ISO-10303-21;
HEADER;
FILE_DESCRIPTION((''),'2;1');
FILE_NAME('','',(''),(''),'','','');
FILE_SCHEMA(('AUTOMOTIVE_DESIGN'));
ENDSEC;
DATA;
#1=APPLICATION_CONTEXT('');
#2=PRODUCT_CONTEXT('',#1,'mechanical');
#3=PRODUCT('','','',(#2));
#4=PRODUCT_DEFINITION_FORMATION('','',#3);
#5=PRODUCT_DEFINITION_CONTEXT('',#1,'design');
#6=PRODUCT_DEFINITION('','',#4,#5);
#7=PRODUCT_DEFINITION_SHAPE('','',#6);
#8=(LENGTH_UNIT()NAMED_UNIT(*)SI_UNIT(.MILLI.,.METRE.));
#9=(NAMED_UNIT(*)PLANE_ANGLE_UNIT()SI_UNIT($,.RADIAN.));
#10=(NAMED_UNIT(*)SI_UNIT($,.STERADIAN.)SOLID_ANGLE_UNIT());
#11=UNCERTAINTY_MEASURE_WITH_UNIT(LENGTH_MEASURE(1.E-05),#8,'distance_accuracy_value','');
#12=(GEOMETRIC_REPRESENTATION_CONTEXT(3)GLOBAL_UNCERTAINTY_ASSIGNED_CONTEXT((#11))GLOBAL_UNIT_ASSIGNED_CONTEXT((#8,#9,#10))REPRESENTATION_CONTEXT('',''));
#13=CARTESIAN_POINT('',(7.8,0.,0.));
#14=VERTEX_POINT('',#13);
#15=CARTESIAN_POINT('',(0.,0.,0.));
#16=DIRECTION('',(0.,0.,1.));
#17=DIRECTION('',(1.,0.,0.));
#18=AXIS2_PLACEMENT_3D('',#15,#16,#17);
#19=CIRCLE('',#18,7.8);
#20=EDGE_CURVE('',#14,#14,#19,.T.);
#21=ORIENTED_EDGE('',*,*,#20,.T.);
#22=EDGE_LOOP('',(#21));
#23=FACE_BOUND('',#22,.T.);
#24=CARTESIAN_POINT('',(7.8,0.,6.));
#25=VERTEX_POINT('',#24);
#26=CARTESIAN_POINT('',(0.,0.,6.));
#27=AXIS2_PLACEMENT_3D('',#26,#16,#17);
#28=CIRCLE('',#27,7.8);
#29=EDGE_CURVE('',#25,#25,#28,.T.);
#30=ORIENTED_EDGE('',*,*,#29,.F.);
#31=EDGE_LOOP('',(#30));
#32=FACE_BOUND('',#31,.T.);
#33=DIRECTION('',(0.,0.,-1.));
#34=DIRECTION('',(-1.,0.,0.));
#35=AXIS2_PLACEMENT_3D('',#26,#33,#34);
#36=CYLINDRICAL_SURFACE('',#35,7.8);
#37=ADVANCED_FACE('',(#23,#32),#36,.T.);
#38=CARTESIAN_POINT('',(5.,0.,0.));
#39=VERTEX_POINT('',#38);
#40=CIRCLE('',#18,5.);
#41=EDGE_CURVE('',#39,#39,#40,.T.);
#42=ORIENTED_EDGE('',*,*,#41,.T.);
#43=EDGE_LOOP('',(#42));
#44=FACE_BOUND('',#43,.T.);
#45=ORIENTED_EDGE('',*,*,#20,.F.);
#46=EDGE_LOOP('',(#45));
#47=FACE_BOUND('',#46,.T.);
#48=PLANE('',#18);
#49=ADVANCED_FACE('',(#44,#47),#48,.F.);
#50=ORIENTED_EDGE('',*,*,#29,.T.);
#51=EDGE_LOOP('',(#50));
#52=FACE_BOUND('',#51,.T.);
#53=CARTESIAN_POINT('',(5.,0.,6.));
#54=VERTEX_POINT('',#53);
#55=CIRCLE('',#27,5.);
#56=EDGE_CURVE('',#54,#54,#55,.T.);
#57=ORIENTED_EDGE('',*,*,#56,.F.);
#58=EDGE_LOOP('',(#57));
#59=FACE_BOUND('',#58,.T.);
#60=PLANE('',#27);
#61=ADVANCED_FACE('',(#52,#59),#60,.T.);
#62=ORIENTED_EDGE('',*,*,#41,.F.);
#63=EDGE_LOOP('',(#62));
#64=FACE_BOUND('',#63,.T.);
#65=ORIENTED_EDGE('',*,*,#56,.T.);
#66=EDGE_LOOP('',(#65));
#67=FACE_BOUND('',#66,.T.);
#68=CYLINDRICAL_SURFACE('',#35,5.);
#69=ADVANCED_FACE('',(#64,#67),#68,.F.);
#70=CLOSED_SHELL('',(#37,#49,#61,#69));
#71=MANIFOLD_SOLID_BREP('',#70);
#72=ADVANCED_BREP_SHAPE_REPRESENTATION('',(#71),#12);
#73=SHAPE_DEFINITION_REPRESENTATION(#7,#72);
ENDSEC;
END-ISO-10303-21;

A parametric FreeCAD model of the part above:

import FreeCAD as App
import Part
import Sketcher

V = App.Vector

doc = App.newDocument("Part")
params = doc.addObject("Spreadsheet::Sheet", "Params")
for row, (alias, value) in enumerate([
    ("sketch1_diameter", "10 mm"),
    ("sketch1_diameter2", "15.6 mm"),
    ("pad1_length", "6 mm"),
], start=1):
    params.set(f"A{row}", alias)
    params.set(f"B{row}", "=" + value)
    params.setAlias(f"B{row}", alias)

body = doc.addObject("PartDesign::Body", "Body")

sketch1 = body.newObject("Sketcher::SketchObject", "Sketch")
sketch1.AttachmentSupport = (doc.getObject("XY_Plane"), [""])
sketch1.MapMode = "FlatFace"
sketch1.addGeometry(Part.Circle(V(0, 0, 0), V(0, 0, 1), 8), False)
sketch1.addGeometry(Part.Circle(V(0, 0, 0), V(0, 0, 1), 5), False)
sketch1.addConstraint(Sketcher.Constraint("Coincident", 0, 3, -1, 1))
sketch1.addConstraint(Sketcher.Constraint("Coincident", 1, 3, -1, 1))
sketch1.addConstraint(Sketcher.Constraint("Diameter", 1, 10.0))
sketch1.addConstraint(Sketcher.Constraint("Diameter", 0, 15.6))
sketch1.setExpression("Constraints[2]", "Params.sketch1_diameter")
sketch1.setExpression("Constraints[3]", "Params.sketch1_diameter2")
pad1 = body.newObject("PartDesign::Pad", "Pad")
pad1.Profile = sketch1
pad1.setExpression("Length", "Params.pad1_length")

doc.recompute()
